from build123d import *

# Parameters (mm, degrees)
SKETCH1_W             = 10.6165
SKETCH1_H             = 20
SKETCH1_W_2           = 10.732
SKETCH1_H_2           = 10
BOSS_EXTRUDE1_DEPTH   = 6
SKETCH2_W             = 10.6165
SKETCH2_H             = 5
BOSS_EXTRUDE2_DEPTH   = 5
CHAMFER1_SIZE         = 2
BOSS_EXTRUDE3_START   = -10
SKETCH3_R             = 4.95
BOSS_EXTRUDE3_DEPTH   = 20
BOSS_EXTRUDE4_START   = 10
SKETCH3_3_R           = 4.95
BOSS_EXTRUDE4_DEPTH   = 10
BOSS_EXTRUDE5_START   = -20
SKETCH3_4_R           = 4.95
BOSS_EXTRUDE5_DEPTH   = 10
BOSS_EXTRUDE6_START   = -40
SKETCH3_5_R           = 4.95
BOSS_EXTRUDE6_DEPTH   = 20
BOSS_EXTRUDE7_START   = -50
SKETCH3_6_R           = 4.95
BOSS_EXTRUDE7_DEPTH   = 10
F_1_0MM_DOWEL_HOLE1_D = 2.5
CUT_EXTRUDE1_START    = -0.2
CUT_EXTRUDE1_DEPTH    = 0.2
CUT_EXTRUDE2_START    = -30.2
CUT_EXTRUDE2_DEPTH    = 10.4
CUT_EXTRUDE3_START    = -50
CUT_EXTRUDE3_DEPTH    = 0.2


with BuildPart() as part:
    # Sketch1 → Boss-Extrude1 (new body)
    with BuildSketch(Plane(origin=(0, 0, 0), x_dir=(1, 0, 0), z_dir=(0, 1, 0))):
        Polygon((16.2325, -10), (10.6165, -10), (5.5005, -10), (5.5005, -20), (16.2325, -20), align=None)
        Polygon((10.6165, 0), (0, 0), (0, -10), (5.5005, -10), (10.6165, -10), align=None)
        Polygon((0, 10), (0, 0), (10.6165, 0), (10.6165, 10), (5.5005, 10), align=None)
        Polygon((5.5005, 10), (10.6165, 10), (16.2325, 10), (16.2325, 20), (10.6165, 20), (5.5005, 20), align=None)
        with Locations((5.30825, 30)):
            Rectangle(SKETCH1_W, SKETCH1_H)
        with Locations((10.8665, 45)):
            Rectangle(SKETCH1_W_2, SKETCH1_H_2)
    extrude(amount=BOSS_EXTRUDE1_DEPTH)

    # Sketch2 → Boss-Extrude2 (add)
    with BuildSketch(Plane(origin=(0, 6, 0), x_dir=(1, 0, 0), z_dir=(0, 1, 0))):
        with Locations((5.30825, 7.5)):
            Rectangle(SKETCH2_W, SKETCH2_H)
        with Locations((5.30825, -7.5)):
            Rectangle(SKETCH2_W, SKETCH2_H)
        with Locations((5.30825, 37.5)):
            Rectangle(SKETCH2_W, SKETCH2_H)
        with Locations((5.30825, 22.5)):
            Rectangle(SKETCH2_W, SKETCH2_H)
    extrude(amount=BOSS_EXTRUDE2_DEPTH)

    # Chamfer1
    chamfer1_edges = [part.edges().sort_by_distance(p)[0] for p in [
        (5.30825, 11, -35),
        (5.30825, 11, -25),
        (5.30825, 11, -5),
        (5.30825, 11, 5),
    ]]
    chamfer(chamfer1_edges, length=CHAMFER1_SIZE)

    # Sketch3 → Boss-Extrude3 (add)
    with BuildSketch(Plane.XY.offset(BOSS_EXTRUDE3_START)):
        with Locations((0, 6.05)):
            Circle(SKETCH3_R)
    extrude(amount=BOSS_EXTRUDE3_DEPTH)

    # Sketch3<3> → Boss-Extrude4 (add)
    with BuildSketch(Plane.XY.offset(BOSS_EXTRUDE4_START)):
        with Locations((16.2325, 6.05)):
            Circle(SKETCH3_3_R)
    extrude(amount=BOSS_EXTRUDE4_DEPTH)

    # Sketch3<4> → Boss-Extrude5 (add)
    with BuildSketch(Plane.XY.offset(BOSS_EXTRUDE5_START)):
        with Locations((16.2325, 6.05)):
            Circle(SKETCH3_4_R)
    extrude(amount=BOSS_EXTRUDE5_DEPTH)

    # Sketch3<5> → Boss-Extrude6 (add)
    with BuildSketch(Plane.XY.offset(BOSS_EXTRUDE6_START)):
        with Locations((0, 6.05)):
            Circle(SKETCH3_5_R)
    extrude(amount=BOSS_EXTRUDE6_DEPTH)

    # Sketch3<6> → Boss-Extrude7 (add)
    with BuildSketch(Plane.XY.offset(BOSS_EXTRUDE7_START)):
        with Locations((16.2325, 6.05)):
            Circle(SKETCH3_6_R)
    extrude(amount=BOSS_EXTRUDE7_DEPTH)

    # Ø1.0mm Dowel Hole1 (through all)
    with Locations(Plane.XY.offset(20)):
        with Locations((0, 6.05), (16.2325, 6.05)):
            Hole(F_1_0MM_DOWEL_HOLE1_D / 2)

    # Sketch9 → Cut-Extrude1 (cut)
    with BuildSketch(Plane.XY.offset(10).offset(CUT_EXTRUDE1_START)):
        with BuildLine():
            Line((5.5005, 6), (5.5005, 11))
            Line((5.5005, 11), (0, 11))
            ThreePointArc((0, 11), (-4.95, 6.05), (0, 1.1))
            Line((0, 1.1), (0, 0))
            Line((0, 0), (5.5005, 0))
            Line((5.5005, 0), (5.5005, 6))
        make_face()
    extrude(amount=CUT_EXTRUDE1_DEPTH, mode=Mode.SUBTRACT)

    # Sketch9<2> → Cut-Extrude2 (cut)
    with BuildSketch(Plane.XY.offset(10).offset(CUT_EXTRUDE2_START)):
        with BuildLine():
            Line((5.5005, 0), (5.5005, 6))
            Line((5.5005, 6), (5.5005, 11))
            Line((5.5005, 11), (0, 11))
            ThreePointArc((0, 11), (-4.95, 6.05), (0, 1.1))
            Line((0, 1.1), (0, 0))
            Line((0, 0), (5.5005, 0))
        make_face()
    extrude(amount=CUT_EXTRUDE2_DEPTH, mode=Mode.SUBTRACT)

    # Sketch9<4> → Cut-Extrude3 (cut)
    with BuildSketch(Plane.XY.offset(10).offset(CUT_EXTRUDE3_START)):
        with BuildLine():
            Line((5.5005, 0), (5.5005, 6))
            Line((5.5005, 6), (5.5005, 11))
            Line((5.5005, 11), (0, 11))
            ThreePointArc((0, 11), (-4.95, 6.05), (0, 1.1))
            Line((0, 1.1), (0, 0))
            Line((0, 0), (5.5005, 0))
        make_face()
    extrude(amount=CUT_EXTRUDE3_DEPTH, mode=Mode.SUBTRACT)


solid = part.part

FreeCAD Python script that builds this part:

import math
import FreeCAD as App
import Part
import Sketcher
from FreeCAD import Vector


def edges_at(feature, points):
    """Names of the edges that pass closest to the given points."""
    edges = feature.Shape.Edges
    near = lambda p: min(range(len(edges)), key=lambda i: edges[i].distToShape(Part.Vertex(*p))[0])
    return sorted({f"Edge{near(p) + 1}" for p in points})

doc = App.newDocument("Part")
params = doc.addObject("Spreadsheet::Sheet", "Params")
for row, (alias, value) in enumerate([
    ("sketch1_height", "20 mm"),
    ("sketch1_height2", "10 mm"),
    ("pad1_length", "6 mm"),
    ("sketch2_height", "5 mm"),
    ("pad2_length", "5 mm"),
    ("chamfer_size", "2 mm"),
    ("sketch3_diameter", "9.9 mm"),
    ("pad3_length", "20 mm"),
    ("sketch4_diameter", "9.9 mm"),
    ("pad4_length", "10 mm"),
    ("sketch5_diameter", "9.9 mm"),
    ("pad5_length", "10 mm"),
    ("sketch6_diameter", "9.9 mm"),
    ("pad6_length", "20 mm"),
    ("sketch7_diameter", "9.9 mm"),
    ("pad7_length", "10 mm"),
    ("sketch8_diameter", "2.5 mm"),
    ("hole_diameter", "2.5 mm"),
    ("sketch9_height", "11 mm"),
    ("sketch9_radius", "4.95 mm"),
    ("pocket1_length", "0.2 mm"),
    ("sketch10_height", "11 mm"),
    ("sketch10_radius", "4.95 mm"),
    ("pocket2_length", "10.4 mm"),
    ("sketch11_height", "11 mm"),
    ("sketch11_radius", "4.95 mm"),
    ("pocket3_length", "0.2 mm"),
], start=1):
    params.set(f"A{row}", alias)
    params.set(f"B{row}", "=" + value)
    params.setAlias(f"B{row}", alias)

body = doc.addObject("PartDesign::Body", "Body")

sketch1 = doc.addObject("Sketcher::SketchObject", "Sketch")
body.addObject(sketch1)
sketch1.AttachmentSupport = (doc.XZ_Plane, [""])
sketch1.MapMode = "FlatFace"
sketch1.addGeometry([
    Part.LineSegment(Vector(16, 10, 0), Vector(11, 10, 0)),
    Part.LineSegment(Vector(11, 10, 0), Vector(11, -10, 0)),
    Part.LineSegment(Vector(11, -10, 0), Vector(16, -10, 0)),
    Part.LineSegment(Vector(16, -10, 0), Vector(16, -20, 0)),
    Part.LineSegment(Vector(16, -20, 0), Vector(11, -20, 0)),
    Part.LineSegment(Vector(11, -20, 0), Vector(11, -40, 0)),
    Part.LineSegment(Vector(11, -40, 0), Vector(16, -40, 0)),
    Part.LineSegment(Vector(16, -40, 0), Vector(16, -50, 0)),
    Part.LineSegment(Vector(16, -50, 0), Vector(6, -50, 0)),
    Part.LineSegment(Vector(6, -50, 0), Vector(6, -40, 0)),
    Part.LineSegment(Vector(6, -40, 0), Vector(0, -40, 0)),
    Part.LineSegment(Vector(0, -40, 0), Vector(0, -20, 0)),
    Part.LineSegment(Vector(0, -20, 0), Vector(6, -20, 0)),
    Part.LineSegment(Vector(6, -20, 0), Vector(6, -10, 0)),
    Part.LineSegment(Vector(6, -10, 0), Vector(0, -10, 0)),
    Part.LineSegment(Vector(0, -10, 0), Vector(0, 10, 0)),
    Part.LineSegment(Vector(0, 10, 0), Vector(6, 10, 0)),
    Part.LineSegment(Vector(6, 10, 0), Vector(6, 20, 0)),
    Part.LineSegment(Vector(6, 20, 0), Vector(16, 20, 0)),
    Part.LineSegment(Vector(16, 20, 0), Vector(16, 10, 0)),
], False)
sketch1.addConstraint([
    Sketcher.Constraint("Coincident", 0, 2, 1, 1),
    Sketcher.Constraint("Coincident", 1, 2, 2, 1),
    Sketcher.Constraint("Coincident", 2, 2, 3, 1),
    Sketcher.Constraint("Coincident", 3, 2, 4, 1),
    Sketcher.Constraint("Coincident", 4, 2, 5, 1),
    Sketcher.Constraint("Coincident", 5, 2, 6, 1),
    Sketcher.Constraint("Coincident", 6, 2, 7, 1),
    Sketcher.Constraint("Coincident", 7, 2, 8, 1),
    Sketcher.Constraint("Coincident", 8, 2, 9, 1),
    Sketcher.Constraint("Coincident", 9, 2, 10, 1),
    Sketcher.Constraint("Coincident", 10, 2, 11, 1),
    Sketcher.Constraint("Coincident", 11, 2, 12, 1),
    Sketcher.Constraint("Coincident", 12, 2, 13, 1),
    Sketcher.Constraint("Coincident", 13, 2, 14, 1),
    Sketcher.Constraint("Coincident", 14, 2, 15, 1),
    Sketcher.Constraint("Coincident", 15, 2, 16, 1),
    Sketcher.Constraint("Coincident", 16, 2, 17, 1),
    Sketcher.Constraint("Coincident", 17, 2, 18, 1),
    Sketcher.Constraint("Coincident", 18, 2, 19, 1),
    Sketcher.Constraint("Coincident", 19, 2, 0, 1),
    Sketcher.Constraint("Horizontal", 0),
    Sketcher.Constraint("Vertical", 1),
    Sketcher.Constraint("Horizontal", 2),
    Sketcher.Constraint("Vertical", 3),
    Sketcher.Constraint("Horizontal", 4),
    Sketcher.Constraint("Vertical", 5),
    Sketcher.Constraint("Horizontal", 6),
    Sketcher.Constraint("Vertical", 7),
    Sketcher.Constraint("Horizontal", 8),
    Sketcher.Constraint("Vertical", 9),
    Sketcher.Constraint("Horizontal", 10),
    Sketcher.Constraint("Vertical", 11),
    Sketcher.Constraint("Horizontal", 12),
    Sketcher.Constraint("Vertical", 13),
    Sketcher.Constraint("Horizontal", 14),
    Sketcher.Constraint("Vertical", 15),
    Sketcher.Constraint("Horizontal", 16),
    Sketcher.Constraint("Vertical", 17),
    Sketcher.Constraint("Horizontal", 18),
    Sketcher.Constraint("Vertical", 19),
    Sketcher.Constraint("Symmetric", 14, 2, 15, 2, -1, 1),
    Sketcher.Constraint("Symmetric", 12, 2, 17, 2, -1),
    Sketcher.Constraint("Symmetric", 3, 2, 18, 2, -1),
    Sketcher.Constraint("PointOnObject", 10, 2, -2),
    Sketcher.Constraint("Horizontal", 6, 2, 9, 2),
    Sketcher.Constraint("Horizontal", 2, 2, 13, 2),
    Sketcher.Constraint("Horizontal", 0, 2, 15, 2),
    Sketcher.Constraint("Vertical", 1, 2, 4, 2),
    Sketcher.Constraint("Vertical", 3, 2, 6, 2),
    Sketcher.Constraint("Vertical", 9, 2, 12, 2),
    Sketcher.Constraint("Equal", 1, 5),
    Sketcher.Constraint("Equal", 3, 7),
    Sketcher.Constraint("DistanceY", 1, 2, 1, 1, 20.0),
    Sketcher.Constraint("DistanceY", 3, 2, 3, 1, 10.0),
    Sketcher.Constraint("DistanceX", 0, 2, 0, 1, 5.616),
    Sketcher.Constraint("DistanceX", 8, 2, 8, 1, 10.732),
    Sketcher.Constraint("DistanceX", 10, 2, 10, 1, 5.5005),
])
sketch1.setExpression("Constraints[52]", "Params.sketch1_height")
sketch1.setExpression("Constraints[53]", "Params.sketch1_height2")
pad1 = doc.addObject("PartDesign::Pad", "Pad")
body.addObject(pad1)
pad1.Profile = sketch1
pad1.setExpression("Length", "Params.pad1_length")
pad1.Reversed = True

sketch2 = doc.addObject("Sketcher::SketchObject", "Sketch001")
body.addObject(sketch2)
sketch2.AttachmentSupport = (doc.XZ_Plane, [""])
sketch2.MapMode = "FlatFace"
sketch2.AttachmentOffset = App.Placement(Vector(0, 0, -6), App.Rotation())
sketch2.addGeometry([
    Part.LineSegment(Vector(0, -10, 0), Vector(0, -5, 0)),
    Part.LineSegment(Vector(0, -5, 0), Vector(11, -5, 0)),
    Part.LineSegment(Vector(11, -5, 0), Vector(11, -10, 0)),
    Part.LineSegment(Vector(11, -10, 0), Vector(0, -10, 0)),
    Part.LineSegment(Vector(0, 5, 0), Vector(0, 10, 0)),
    Part.LineSegment(Vector(0, 10, 0), Vector(11, 10, 0)),
    Part.LineSegment(Vector(11, 10, 0), Vector(11, 5, 0)),
    Part.LineSegment(Vector(11, 5, 0), Vector(0, 5, 0)),
    Part.LineSegment(Vector(0, -40, 0), Vector(0, -35, 0)),
    Part.LineSegment(Vector(0, -35, 0), Vector(11, -35, 0)),
    Part.LineSegment(Vector(11, -35, 0), Vector(11, -40, 0)),
    Part.LineSegment(Vector(11, -40, 0), Vector(0, -40, 0)),
    Part.LineSegment(Vector(0, -25, 0), Vector(0, -20, 0)),
    Part.LineSegment(Vector(0, -20, 0), Vector(11, -20, 0)),
    Part.LineSegment(Vector(11, -20, 0), Vector(11, -25, 0)),
    Part.LineSegment(Vector(11, -25, 0), Vector(0, -25, 0)),
], False)
sketch2.addConstraint([
    Sketcher.Constraint("Coincident", 0, 2, 1, 1),
    Sketcher.Constraint("Coincident", 1, 2, 2, 1),
    Sketcher.Constraint("Coincident", 2, 2, 3, 1),
    Sketcher.Constraint("Coincident", 3, 2, 0, 1),
    Sketcher.Constraint("Coincident", 4, 2, 5, 1),
    Sketcher.Constraint("Coincident", 5, 2, 6, 1),
    Sketcher.Constraint("Coincident", 6, 2, 7, 1),
    Sketcher.Constraint("Coincident", 7, 2, 4, 1),
    Sketcher.Constraint("Coincident", 8, 2, 9, 1),
    Sketcher.Constraint("Coincident", 9, 2, 10, 1),
    Sketcher.Constraint("Coincident", 10, 2, 11, 1),
    Sketcher.Constraint("Coincident", 11, 2, 8, 1),
    Sketcher.Constraint("Coincident", 12, 2, 13, 1),
    Sketcher.Constraint("Coincident", 13, 2, 14, 1),
    Sketcher.Constraint("Coincident", 14, 2, 15, 1),
    Sketcher.Constraint("Coincident", 15, 2, 12, 1),
    Sketcher.Constraint("Vertical", 0),
    Sketcher.Constraint("Horizontal", 1),
    Sketcher.Constraint("Vertical", 2),
    Sketcher.Constraint("Horizontal", 3),
    Sketcher.Constraint("Vertical", 4),
    Sketcher.Constraint("Horizontal", 5),
    Sketcher.Constraint("Vertical", 6),
    Sketcher.Constraint("Horizontal", 7),
    Sketcher.Constraint("Vertical", 8),
    Sketcher.Constraint("Horizontal", 9),
    Sketcher.Constraint("Vertical", 10),
    Sketcher.Constraint("Horizontal", 11),
    Sketcher.Constraint("Vertical", 12),
    Sketcher.Constraint("Horizontal", 13),
    Sketcher.Constraint("Vertical", 14),
    Sketcher.Constraint("Horizontal", 15),
    Sketcher.Constraint("Symmetric", 3, 2, 4, 2, -1, 1),
    Sketcher.Constraint("Symmetric", 1, 2, 6, 2, -1),
    Sketcher.Constraint("PointOnObject", 0, 2, -2),
    Sketcher.Constraint("PointOnObject", 8, 2, -2),
    Sketcher.Constraint("PointOnObject", 12, 2, -2),
    Sketcher.Constraint("Vertical", 6, 2, 9, 2),
    Sketcher.Constraint("Vertical", 10, 2, 13, 2),
    Sketcher.Constraint("Equal", 6, 8),
    Sketcher.Constraint("Equal", 10, 12),
    Sketcher.Constraint("DistanceY", 0, 1, 0, 2, 5.0),
    Sketcher.Constraint("DistanceY", 0, 2, -1, 1, 5.0),
    Sketcher.Constraint("DistanceY", 8, 2, -1, 1, 35.0),
    Sketcher.Constraint("DistanceY", 12, 2, -1, 1, 20.0),
    Sketcher.Constraint("DistanceX", 1, 1, 1, 2, 10.6165),
])
sketch2.setExpression("Constraints[41]", "Params.sketch2_height")
pad2 = doc.addObject("PartDesign::Pad", "Pad001")
body.addObject(pad2)
pad2.Profile = sketch2
pad2.setExpression("Length", "Params.pad2_length")
pad2.Reversed = True
doc.recompute()

chamfer = doc.addObject("PartDesign::Chamfer", "Chamfer")
body.addObject(chamfer)
chamfer.Base = (pad2, edges_at(pad2, [
    (5.308, 11, -35),
    (5.308, 11, -25),
    (5.308, 11, -5),
    (5.308, 11, 5),
]))
chamfer.setExpression("Size", "Params.chamfer_size")

sketch3 = doc.addObject("Sketcher::SketchObject", "Sketch002")
body.addObject(sketch3)
sketch3.AttachmentSupport = (doc.XY_Plane, [""])
sketch3.MapMode = "FlatFace"
sketch3.AttachmentOffset = App.Placement(Vector(0, 0, -10), App.Rotation())
sketch3.addGeometry(Part.Circle(Vector(0, 6, 0), Vector(0, 0, 1), 5), False)
sketch3.addConstraint([
    Sketcher.Constraint("PointOnObject", 0, 3, -2),
    Sketcher.Constraint("Diameter", 0, 9.9),
    Sketcher.Constraint("DistanceY", -1, 1, 0, 3, 6.05),
])
sketch3.setExpression("Constraints[1]", "Params.sketch3_diameter")
pad3 = doc.addObject("PartDesign::Pad", "Pad002")
body.addObject(pad3)
pad3.Profile = sketch3
pad3.setExpression("Length", "Params.pad3_length")

sketch4 = doc.addObject("Sketcher::SketchObject", "Sketch003")
body.addObject(sketch4)
sketch4.AttachmentSupport = (doc.XY_Plane, [""])
sketch4.MapMode = "FlatFace"
sketch4.AttachmentOffset = App.Placement(Vector(0, 0, 10), App.Rotation())
sketch4.addGeometry(Part.Circle(Vector(16.2, 6, 0), Vector(0, 0, 1), 5), False)
sketch4.addConstraint([
    Sketcher.Constraint("Diameter", 0, 9.9),
    Sketcher.Constraint("DistanceY", -1, 1, 0, 3, 6.05),
    Sketcher.Constraint("DistanceX", -1, 1, 0, 3, 16.2325),
])
sketch4.setExpression("Constraints[0]", "Params.sketch4_diameter")
pad4 = doc.addObject("PartDesign::Pad", "Pad003")
body.addObject(pad4)
pad4.Profile = sketch4
pad4.setExpression("Length", "Params.pad4_length")

sketch5 = doc.addObject("Sketcher::SketchObject", "Sketch004")
body.addObject(sketch5)
sketch5.AttachmentSupport = (doc.XY_Plane, [""])
sketch5.MapMode = "FlatFace"
sketch5.AttachmentOffset = App.Placement(Vector(0, 0, -20), App.Rotation())
sketch5.addGeometry(Part.Circle(Vector(16.2, 6, 0), Vector(0, 0, 1), 5), False)
sketch5.addConstraint([
    Sketcher.Constraint("Diameter", 0, 9.9),
    Sketcher.Constraint("DistanceY", -1, 1, 0, 3, 6.05),
    Sketcher.Constraint("DistanceX", -1, 1, 0, 3, 16.2325),
])
sketch5.setExpression("Constraints[0]", "Params.sketch5_diameter")
pad5 = doc.addObject("PartDesign::Pad", "Pad004")
body.addObject(pad5)
pad5.Profile = sketch5
pad5.setExpression("Length", "Params.pad5_length")

sketch6 = doc.addObject("Sketcher::SketchObject", "Sketch005")
body.addObject(sketch6)
sketch6.AttachmentSupport = (doc.XY_Plane, [""])
sketch6.MapMode = "FlatFace"
sketch6.AttachmentOffset = App.Placement(Vector(0, 0, -40), App.Rotation())
sketch6.addGeometry(Part.Circle(Vector(0, 6, 0), Vector(0, 0, 1), 5), False)
sketch6.addConstraint([
    Sketcher.Constraint("PointOnObject", 0, 3, -2),
    Sketcher.Constraint("Diameter", 0, 9.9),
    Sketcher.Constraint("DistanceY", -1, 1, 0, 3, 6.05),
])
sketch6.setExpression("Constraints[1]", "Params.sketch6_diameter")
pad6 = doc.addObject("PartDesign::Pad", "Pad005")
body.addObject(pad6)
pad6.Profile = sketch6
pad6.setExpression("Length", "Params.pad6_length")

sketch7 = doc.addObject("Sketcher::SketchObject", "Sketch006")
body.addObject(sketch7)
sketch7.AttachmentSupport = (doc.XY_Plane, [""])
sketch7.MapMode = "FlatFace"
sketch7.AttachmentOffset = App.Placement(Vector(0, 0, -50), App.Rotation())
sketch7.addGeometry(Part.Circle(Vector(16.2, 6, 0), Vector(0, 0, 1), 5), False)
sketch7.addConstraint([
    Sketcher.Constraint("Diameter", 0, 9.9),
    Sketcher.Constraint("DistanceY", -1, 1, 0, 3, 6.05),
    Sketcher.Constraint("DistanceX", -1, 1, 0, 3, 16.2325),
])
sketch7.setExpression("Constraints[0]", "Params.sketch7_diameter")
pad7 = doc.addObject("PartDesign::Pad", "Pad006")
body.addObject(pad7)
pad7.Profile = sketch7
pad7.setExpression("Length", "Params.pad7_length")

sketch8 = doc.addObject("Sketcher::SketchObject", "Sketch007")
body.addObject(sketch8)
sketch8.AttachmentSupport = (doc.XY_Plane, [""])
sketch8.MapMode = "FlatFace"
sketch8.AttachmentOffset = App.Placement(Vector(0, 0, 20), App.Rotation())
sketch8.addGeometry([
    Part.Circle(Vector(0, 6, 0), Vector(0, 0, 1), 1.2),
    Part.Circle(Vector(16.2, 6, 0), Vector(0, 0, 1), 1.2),
], False)
sketch8.addConstraint([
    Sketcher.Constraint("Equal", 0, 1),
    Sketcher.Constraint("PointOnObject", 0, 3, -2),
    Sketcher.Constraint("Horizontal", 0, 3, 1, 3),
    Sketcher.Constraint("Diameter", 0, 2.5),
    Sketcher.Constraint("DistanceY", -1, 1, 0, 3, 6.05),
    Sketcher.Constraint("DistanceX", -1, 1, 1, 3, 16.2325),
])
sketch8.setExpression("Constraints[3]", "Params.sketch8_diameter")
doc.recompute()
hole = doc.addObject("PartDesign::Hole", "Hole")
body.addObject(hole)
hole.Profile = sketch8
hole.ThreadType = "None"
hole.setExpression("Diameter", "Params.hole_diameter")
hole.DepthType = "ThroughAll"

sketch9 = doc.addObject("Sketcher::SketchObject", "Sketch008")
body.addObject(sketch9)
sketch9.AttachmentSupport = (doc.XY_Plane, [""])
sketch9.MapMode = "FlatFace"
sketch9.AttachmentOffset = App.Placement(Vector(0, 0, 9.8), App.Rotation())
sketch9.addGeometry([
    Part.LineSegment(Vector(5.5, 11, 0), Vector(0, 11, 0)),
    Part.ArcOfCircle(Part.Circle(Vector(0, 6, 0), Vector(0, 0, 1), 5), math.radians(90), math.radians(270)),
    Part.LineSegment(Vector(0, 1.1, 0), Vector(0, 0, 0)),
    Part.LineSegment(Vector(0, 0, 0), Vector(5.5, 0, 0)),
    Part.LineSegment(Vector(5.5, 0, 0), Vector(5.5, 11, 0)),
], False)
sketch9.addConstraint([
    Sketcher.Constraint("Tangent", 0, 2, 1, 1),
    Sketcher.Constraint("Coincident", 1, 2, 2, 1),
    Sketcher.Constraint("Coincident", 2, 2, 3, 1),
    Sketcher.Constraint("Coincident", 3, 2, 4, 1),
    Sketcher.Constraint("Coincident", 4, 2, 0, 1),
    Sketcher.Constraint("Horizontal", 0),
    Sketcher.Constraint("Vertical", 2),
    Sketcher.Constraint("Horizontal", 3),
    Sketcher.Constraint("Vertical", 4),
    Sketcher.Constraint("Coincident", 2, 2, -1, 1),
    Sketcher.Constraint("PointOnObject", 1, 3, -2),
    Sketcher.Constraint("DistanceY", 4, 1, 4, 2, 11.0),
    Sketcher.Constraint("Radius", 1, 4.95),
    Sketcher.Constraint("DistanceX", 0, 2, 0, 1, 5.5005),
])
sketch9.setExpression("Constraints[11]", "Params.sketch9_height")
sketch9.setExpression("Constraints[12]", "Params.sketch9_radius")
pocket1 = doc.addObject("PartDesign::Pocket", "Pocket")
body.addObject(pocket1)
pocket1.Profile = sketch9
pocket1.setExpression("Length", "Params.pocket1_length")
pocket1.Reversed = True

sketch10 = doc.addObject("Sketcher::SketchObject", "Sketch009")
body.addObject(sketch10)
sketch10.AttachmentSupport = (doc.XY_Plane, [""])
sketch10.MapMode = "FlatFace"
sketch10.AttachmentOffset = App.Placement(Vector(0, 0, -20.2), App.Rotation())
sketch10.addGeometry([
    Part.LineSegment(Vector(5.5, 0, 0), Vector(5.5, 11, 0)),
    Part.LineSegment(Vector(5.5, 11, 0), Vector(0, 11, 0)),
    Part.ArcOfCircle(Part.Circle(Vector(0, 6, 0), Vector(0, 0, 1), 5), math.radians(90), math.radians(270)),
    Part.LineSegment(Vector(0, 1.1, 0), Vector(0, 0, 0)),
    Part.LineSegment(Vector(0, 0, 0), Vector(5.5, 0, 0)),
], False)
sketch10.addConstraint([
    Sketcher.Constraint("Coincident", 0, 2, 1, 1),
    Sketcher.Constraint("Tangent", 1, 2, 2, 1),
    Sketcher.Constraint("Coincident", 2, 2, 3, 1),
    Sketcher.Constraint("Coincident", 3, 2, 4, 1),
    Sketcher.Constraint("Coincident", 4, 2, 0, 1),
    Sketcher.Constraint("Vertical", 0),
    Sketcher.Constraint("Horizontal", 1),
    Sketcher.Constraint("Vertical", 3),
    Sketcher.Constraint("Horizontal", 4),
    Sketcher.Constraint("Coincident", 3, 2, -1, 1),
    Sketcher.Constraint("PointOnObject", 2, 3, -2),
    Sketcher.Constraint("DistanceY", 0, 1, 0, 2, 11.0),
    Sketcher.Constraint("Radius", 2, 4.95),
    Sketcher.Constraint("DistanceX", 1, 2, 1, 1, 5.5005),
])
sketch10.setExpression("Constraints[11]", "Params.sketch10_height")
sketch10.setExpression("Constraints[12]", "Params.sketch10_radius")
pocket2 = doc.addObject("PartDesign::Pocket", "Pocket001")
body.addObject(pocket2)
pocket2.Profile = sketch10
pocket2.setExpression("Length", "Params.pocket2_length")
pocket2.Reversed = True

sketch11 = doc.addObject("Sketcher::SketchObject", "Sketch010")
body.addObject(sketch11)
sketch11.AttachmentSupport = (doc.XY_Plane, [""])
sketch11.MapMode = "FlatFace"
sketch11.AttachmentOffset = App.Placement(Vector(0, 0, -40), App.Rotation())
sketch11.addGeometry([
    Part.LineSegment(Vector(5.5, 0, 0), Vector(5.5, 11, 0)),
    Part.LineSegment(Vector(5.5, 11, 0), Vector(0, 11, 0)),
    Part.ArcOfCircle(Part.Circle(Vector(0, 6, 0), Vector(0, 0, 1), 5), math.radians(90), math.radians(270)),
    Part.LineSegment(Vector(0, 1.1, 0), Vector(0, 0, 0)),
    Part.LineSegment(Vector(0, 0, 0), Vector(5.5, 0, 0)),
], False)
sketch11.addConstraint([
    Sketcher.Constraint("Coincident", 0, 2, 1, 1),
    Sketcher.Constraint("Tangent", 1, 2, 2, 1),
    Sketcher.Constraint("Coincident", 2, 2, 3, 1),
    Sketcher.Constraint("Coincident", 3, 2, 4, 1),
    Sketcher.Constraint("Coincident", 4, 2, 0, 1),
    Sketcher.Constraint("Vertical", 0),
    Sketcher.Constraint("Horizontal", 1),
    Sketcher.Constraint("Vertical", 3),
    Sketcher.Constraint("Horizontal", 4),
    Sketcher.Constraint("Coincident", 3, 2, -1, 1),
    Sketcher.Constraint("PointOnObject", 2, 3, -2),
    Sketcher.Constraint("DistanceY", 0, 1, 0, 2, 11.0),
    Sketcher.Constraint("Radius", 2, 4.95),
    Sketcher.Constraint("DistanceX", 1, 2, 1, 1, 5.5005),
])
sketch11.setExpression("Constraints[11]", "Params.sketch11_height")
sketch11.setExpression("Constraints[12]", "Params.sketch11_radius")
pocket3 = doc.addObject("PartDesign::Pocket", "Pocket002")
body.addObject(pocket3)
pocket3.Profile = sketch11
pocket3.setExpression("Length", "Params.pocket3_length")
pocket3.Reversed = True

doc.recompute()
